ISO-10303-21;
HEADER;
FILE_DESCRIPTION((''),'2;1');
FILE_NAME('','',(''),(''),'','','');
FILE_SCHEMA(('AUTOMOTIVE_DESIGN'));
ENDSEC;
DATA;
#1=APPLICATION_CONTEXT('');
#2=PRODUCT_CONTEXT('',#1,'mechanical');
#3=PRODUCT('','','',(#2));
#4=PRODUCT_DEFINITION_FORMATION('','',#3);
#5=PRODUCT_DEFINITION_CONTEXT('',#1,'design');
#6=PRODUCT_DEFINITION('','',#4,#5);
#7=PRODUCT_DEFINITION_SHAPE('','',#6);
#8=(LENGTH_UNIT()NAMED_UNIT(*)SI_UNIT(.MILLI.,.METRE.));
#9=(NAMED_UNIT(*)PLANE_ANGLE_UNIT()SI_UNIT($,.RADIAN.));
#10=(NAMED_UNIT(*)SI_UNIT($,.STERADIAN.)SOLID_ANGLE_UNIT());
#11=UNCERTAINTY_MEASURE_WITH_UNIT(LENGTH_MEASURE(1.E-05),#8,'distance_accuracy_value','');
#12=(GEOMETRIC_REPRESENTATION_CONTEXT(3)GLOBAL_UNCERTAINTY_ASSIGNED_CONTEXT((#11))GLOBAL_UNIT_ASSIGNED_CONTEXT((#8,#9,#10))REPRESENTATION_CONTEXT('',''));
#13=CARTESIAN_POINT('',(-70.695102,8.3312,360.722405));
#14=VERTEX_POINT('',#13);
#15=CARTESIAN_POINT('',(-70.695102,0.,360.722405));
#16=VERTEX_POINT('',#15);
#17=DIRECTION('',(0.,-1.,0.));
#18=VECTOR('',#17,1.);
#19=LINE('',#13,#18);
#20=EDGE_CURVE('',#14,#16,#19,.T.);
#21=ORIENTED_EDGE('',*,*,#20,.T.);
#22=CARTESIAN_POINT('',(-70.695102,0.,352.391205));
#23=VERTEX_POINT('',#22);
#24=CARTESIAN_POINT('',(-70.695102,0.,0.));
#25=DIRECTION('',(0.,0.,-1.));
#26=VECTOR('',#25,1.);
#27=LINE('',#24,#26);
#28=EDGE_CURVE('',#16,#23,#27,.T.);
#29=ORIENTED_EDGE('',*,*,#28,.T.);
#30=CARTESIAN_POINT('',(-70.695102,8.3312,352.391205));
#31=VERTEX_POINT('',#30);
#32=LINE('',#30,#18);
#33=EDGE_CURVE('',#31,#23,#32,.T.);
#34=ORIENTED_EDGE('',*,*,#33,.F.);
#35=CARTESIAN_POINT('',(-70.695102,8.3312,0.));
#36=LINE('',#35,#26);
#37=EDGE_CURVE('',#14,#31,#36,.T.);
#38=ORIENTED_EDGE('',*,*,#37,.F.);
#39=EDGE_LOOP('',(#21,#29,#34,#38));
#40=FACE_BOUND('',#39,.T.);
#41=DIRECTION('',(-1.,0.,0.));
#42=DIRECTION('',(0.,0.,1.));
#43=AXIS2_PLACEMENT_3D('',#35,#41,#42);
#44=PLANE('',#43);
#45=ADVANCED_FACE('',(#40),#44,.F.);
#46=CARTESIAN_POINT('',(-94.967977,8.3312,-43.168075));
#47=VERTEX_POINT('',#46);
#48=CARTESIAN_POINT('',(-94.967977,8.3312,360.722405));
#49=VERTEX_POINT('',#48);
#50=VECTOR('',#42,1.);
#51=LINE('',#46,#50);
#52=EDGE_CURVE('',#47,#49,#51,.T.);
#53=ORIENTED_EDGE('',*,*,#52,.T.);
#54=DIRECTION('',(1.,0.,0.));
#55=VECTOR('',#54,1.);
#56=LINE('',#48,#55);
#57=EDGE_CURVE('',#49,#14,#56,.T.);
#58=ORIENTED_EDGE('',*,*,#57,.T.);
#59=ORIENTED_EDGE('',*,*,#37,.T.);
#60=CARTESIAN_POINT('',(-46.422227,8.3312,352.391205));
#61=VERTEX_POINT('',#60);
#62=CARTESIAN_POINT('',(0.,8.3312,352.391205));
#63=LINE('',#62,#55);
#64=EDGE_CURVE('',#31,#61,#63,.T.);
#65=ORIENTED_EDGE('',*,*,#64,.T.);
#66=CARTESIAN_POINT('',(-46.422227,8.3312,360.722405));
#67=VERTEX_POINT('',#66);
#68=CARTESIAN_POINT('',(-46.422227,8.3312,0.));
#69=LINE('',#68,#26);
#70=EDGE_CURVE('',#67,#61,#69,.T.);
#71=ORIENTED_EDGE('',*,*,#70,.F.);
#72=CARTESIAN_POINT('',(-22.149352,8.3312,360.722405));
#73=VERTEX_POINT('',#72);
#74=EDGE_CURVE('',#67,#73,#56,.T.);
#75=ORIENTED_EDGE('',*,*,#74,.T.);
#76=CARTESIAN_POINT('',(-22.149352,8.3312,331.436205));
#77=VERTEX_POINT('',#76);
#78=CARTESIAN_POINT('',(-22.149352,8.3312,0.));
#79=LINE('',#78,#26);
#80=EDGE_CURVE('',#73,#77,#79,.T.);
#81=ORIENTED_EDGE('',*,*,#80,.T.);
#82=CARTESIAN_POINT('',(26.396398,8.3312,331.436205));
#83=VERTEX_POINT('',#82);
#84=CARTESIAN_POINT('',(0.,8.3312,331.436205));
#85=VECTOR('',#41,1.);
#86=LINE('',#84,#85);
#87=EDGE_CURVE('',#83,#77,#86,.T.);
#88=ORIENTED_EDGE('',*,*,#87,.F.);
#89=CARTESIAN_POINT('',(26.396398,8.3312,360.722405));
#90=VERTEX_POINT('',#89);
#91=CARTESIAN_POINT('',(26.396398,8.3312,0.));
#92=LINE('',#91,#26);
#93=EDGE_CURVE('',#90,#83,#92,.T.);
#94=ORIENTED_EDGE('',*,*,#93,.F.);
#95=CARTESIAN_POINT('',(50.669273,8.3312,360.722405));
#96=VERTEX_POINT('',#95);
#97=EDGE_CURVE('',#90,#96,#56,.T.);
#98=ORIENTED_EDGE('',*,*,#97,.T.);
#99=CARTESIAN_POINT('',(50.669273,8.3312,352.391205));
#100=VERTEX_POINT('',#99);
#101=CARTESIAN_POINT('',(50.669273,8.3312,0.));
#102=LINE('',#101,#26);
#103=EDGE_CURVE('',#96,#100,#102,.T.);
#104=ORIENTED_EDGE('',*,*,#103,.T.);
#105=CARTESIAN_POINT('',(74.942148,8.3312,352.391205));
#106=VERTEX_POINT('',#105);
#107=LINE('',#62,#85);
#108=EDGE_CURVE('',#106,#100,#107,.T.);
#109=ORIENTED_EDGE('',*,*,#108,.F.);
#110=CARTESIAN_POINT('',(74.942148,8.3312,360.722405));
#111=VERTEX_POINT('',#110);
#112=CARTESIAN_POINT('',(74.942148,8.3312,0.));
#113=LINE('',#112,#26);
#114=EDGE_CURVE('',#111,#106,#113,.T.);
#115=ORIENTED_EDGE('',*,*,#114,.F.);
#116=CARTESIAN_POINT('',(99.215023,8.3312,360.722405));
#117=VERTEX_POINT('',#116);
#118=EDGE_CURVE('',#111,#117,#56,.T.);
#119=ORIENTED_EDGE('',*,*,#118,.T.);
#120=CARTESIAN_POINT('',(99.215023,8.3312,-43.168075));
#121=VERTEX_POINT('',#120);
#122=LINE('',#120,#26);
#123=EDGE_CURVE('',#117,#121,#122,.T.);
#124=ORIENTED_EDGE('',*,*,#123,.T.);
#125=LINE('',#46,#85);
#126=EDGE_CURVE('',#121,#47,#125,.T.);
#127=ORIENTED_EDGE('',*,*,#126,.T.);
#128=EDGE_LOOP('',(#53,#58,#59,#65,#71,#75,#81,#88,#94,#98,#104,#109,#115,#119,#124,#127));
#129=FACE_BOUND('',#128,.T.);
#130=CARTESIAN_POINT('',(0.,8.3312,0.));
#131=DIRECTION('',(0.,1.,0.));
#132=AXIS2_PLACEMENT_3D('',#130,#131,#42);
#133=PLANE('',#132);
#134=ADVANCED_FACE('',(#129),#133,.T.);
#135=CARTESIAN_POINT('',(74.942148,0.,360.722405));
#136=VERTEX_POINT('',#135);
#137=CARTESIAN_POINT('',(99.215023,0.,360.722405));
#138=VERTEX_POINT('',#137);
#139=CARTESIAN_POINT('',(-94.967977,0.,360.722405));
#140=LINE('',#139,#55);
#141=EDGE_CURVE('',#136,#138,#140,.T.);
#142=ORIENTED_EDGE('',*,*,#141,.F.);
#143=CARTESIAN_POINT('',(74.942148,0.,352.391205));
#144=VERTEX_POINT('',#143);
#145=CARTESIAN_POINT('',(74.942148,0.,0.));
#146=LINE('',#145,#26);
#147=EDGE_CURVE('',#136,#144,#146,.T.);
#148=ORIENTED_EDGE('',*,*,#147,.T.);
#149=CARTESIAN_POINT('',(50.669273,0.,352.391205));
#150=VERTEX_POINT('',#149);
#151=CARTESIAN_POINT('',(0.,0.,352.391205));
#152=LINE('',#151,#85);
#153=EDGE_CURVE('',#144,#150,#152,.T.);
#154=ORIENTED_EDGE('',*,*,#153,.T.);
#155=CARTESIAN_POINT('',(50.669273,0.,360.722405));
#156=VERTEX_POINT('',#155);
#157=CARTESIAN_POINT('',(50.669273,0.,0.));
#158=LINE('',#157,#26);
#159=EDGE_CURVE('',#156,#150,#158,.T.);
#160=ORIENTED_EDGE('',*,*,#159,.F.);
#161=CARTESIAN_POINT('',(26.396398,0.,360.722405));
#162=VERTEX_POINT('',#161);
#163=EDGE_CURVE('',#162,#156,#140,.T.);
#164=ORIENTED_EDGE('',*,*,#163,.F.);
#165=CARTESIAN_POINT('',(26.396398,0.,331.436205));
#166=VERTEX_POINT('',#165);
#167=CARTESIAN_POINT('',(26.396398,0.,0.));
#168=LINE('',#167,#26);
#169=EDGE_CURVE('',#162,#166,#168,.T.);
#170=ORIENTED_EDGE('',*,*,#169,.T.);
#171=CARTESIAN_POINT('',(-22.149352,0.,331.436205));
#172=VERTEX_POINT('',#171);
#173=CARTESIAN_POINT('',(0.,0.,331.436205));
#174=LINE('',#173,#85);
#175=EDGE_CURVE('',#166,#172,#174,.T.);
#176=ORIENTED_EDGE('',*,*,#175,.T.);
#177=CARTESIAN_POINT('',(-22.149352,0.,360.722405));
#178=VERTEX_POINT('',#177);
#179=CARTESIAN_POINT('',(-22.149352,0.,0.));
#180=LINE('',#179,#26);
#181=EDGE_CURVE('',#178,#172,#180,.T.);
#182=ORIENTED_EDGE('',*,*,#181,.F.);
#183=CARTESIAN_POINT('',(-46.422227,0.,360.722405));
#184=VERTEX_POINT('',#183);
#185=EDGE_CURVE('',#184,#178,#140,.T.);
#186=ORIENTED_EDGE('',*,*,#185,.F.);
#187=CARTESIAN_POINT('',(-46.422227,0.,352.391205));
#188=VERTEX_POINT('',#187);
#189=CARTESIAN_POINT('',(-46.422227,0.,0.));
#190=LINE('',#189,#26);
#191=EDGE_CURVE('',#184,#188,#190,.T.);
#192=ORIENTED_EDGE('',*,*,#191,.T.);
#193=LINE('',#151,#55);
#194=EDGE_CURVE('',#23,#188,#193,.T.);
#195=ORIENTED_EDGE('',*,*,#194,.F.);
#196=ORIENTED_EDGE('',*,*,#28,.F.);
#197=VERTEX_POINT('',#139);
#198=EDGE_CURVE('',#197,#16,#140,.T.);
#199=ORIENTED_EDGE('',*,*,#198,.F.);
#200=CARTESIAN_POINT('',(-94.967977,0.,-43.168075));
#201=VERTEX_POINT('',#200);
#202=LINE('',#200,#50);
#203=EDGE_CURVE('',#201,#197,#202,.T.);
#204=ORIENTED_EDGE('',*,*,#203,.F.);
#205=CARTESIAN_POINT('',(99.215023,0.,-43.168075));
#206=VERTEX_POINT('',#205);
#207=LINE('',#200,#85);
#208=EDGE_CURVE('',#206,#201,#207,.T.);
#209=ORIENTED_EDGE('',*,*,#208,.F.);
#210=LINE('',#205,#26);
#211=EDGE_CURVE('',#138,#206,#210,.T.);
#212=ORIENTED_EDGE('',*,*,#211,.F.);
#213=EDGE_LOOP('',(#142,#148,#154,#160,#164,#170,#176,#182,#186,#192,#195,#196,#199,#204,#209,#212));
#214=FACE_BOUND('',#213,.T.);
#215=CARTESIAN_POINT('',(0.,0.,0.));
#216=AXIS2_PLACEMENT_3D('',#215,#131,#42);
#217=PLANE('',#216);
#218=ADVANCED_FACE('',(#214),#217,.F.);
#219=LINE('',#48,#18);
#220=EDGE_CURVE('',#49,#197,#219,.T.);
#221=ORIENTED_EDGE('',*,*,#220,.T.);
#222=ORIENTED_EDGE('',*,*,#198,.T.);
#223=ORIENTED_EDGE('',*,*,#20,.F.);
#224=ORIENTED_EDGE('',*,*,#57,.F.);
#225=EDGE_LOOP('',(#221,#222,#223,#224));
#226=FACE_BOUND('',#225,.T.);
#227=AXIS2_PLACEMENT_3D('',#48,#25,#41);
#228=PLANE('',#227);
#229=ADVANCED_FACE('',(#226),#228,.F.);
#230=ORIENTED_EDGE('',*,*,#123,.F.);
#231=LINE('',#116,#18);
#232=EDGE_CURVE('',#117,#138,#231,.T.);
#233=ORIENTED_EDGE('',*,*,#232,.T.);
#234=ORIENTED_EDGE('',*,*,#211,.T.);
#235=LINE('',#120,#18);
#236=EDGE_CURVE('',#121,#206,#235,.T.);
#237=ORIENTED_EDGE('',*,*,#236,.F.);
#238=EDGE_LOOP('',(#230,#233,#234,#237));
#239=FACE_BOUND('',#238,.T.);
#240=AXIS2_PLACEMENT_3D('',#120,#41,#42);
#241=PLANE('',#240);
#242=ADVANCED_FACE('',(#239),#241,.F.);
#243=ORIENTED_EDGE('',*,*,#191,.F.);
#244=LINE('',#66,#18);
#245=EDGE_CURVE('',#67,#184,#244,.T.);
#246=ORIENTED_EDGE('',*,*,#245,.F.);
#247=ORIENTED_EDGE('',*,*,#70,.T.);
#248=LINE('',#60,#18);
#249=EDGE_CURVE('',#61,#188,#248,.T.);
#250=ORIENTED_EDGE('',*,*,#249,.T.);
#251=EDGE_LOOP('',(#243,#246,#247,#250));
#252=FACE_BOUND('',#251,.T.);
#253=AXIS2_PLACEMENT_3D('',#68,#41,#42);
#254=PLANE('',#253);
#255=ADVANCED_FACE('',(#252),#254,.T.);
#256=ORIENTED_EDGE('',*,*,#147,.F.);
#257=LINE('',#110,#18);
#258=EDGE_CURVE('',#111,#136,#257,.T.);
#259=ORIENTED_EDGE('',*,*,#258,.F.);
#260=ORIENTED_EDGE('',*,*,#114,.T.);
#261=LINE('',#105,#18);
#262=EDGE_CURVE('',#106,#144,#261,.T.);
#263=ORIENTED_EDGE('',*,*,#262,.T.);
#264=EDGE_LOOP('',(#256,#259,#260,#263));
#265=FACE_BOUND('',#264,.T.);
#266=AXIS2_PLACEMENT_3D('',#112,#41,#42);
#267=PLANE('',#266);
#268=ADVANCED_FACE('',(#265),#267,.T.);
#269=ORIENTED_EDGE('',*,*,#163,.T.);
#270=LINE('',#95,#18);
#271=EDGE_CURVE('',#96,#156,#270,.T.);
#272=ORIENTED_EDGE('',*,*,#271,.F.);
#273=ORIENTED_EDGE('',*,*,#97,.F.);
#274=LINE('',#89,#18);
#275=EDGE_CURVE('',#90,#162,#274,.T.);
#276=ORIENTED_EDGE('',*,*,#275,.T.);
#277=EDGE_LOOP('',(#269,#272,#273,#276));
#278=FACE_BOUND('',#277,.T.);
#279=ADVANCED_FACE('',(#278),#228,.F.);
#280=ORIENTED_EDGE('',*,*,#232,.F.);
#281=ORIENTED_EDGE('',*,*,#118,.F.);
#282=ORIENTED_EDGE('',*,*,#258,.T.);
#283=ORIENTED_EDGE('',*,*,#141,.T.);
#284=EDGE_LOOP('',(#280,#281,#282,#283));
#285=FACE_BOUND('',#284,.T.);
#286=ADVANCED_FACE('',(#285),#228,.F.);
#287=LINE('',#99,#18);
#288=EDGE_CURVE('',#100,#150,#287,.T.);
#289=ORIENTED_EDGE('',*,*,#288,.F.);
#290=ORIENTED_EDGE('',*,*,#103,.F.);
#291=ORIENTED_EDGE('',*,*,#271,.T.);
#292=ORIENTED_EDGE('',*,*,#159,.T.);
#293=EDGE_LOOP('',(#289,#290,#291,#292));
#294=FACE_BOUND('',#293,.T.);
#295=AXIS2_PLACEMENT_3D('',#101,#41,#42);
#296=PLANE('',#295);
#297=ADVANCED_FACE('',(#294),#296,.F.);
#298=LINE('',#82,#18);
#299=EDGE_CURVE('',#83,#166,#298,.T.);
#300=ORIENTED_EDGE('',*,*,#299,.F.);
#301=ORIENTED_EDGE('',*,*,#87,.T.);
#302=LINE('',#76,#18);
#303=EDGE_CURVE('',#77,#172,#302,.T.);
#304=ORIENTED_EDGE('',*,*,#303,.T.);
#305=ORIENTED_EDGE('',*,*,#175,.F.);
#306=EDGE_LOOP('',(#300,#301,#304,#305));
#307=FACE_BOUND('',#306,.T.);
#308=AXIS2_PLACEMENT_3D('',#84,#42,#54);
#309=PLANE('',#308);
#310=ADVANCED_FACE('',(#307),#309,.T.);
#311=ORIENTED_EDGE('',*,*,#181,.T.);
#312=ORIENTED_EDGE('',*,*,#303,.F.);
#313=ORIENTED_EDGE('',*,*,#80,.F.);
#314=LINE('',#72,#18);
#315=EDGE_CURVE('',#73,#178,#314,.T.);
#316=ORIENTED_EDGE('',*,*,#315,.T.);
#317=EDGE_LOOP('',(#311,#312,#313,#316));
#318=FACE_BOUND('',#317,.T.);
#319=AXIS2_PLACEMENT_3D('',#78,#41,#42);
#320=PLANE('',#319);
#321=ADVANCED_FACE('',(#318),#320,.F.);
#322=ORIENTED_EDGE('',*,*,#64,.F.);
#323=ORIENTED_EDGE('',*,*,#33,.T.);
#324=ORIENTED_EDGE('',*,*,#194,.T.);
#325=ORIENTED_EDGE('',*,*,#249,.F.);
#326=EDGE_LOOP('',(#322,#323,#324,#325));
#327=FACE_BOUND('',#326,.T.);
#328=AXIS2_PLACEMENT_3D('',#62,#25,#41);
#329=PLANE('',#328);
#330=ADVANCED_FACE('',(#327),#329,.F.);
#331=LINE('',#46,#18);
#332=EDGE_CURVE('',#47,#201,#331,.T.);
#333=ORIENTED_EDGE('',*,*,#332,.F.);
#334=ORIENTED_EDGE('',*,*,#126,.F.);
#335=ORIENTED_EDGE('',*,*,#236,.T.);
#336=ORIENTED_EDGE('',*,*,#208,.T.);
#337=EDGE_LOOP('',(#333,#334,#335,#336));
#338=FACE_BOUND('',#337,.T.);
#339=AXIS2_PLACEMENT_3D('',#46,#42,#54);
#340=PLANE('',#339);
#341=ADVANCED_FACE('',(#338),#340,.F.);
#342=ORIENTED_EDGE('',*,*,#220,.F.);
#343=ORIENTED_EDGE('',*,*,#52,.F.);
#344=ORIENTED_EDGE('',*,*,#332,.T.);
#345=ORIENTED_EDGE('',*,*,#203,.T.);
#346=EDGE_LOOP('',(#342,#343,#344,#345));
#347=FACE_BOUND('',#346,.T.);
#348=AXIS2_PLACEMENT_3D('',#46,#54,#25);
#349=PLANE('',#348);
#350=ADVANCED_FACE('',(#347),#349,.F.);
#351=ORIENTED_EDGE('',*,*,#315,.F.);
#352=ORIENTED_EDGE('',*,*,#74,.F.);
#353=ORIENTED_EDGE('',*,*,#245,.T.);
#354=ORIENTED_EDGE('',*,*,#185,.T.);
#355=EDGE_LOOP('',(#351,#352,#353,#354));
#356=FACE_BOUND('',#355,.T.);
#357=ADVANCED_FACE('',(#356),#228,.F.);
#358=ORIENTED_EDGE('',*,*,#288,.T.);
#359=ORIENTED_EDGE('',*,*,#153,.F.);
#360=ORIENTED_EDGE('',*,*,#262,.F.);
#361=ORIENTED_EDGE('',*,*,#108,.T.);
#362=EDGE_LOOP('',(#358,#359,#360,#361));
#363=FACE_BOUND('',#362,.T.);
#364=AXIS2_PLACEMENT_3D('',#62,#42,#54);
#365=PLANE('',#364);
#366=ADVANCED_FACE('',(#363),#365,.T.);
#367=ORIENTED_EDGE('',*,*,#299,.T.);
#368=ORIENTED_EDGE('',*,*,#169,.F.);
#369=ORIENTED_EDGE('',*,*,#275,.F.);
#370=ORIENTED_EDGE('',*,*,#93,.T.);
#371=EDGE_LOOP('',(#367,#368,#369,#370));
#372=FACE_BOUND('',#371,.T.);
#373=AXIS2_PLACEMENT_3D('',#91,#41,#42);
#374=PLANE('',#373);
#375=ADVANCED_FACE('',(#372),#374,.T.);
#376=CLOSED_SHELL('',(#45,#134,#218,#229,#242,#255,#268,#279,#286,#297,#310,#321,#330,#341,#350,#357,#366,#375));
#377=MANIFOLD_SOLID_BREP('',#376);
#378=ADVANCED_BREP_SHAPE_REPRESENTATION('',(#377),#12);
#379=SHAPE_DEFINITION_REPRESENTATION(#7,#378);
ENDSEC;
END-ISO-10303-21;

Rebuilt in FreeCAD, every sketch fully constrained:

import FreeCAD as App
import Part
import Sketcher
from FreeCAD import Vector
Q = App.Units.Quantity


def add_polygon(sketch, points):
    """Adds a closed chain of lines whose ends are joined by coincident constraints."""
    first, n = sketch.GeometryCount, len(points)
    for a, b in zip(points, points[1:] + points[:1]):
        sketch.addGeometry(Part.LineSegment(App.Vector(*a, 0), App.Vector(*b, 0)), False)
    for i in range(n):
        sketch.addConstraint(Sketcher.Constraint("Coincident", first + i, 2, first + (i + 1) % n, 1))

doc = App.newDocument("Part")
body = doc.addObject("PartDesign::Body", "Body")

sketch1 = doc.addObject("Sketcher::SketchObject", "Sketch")
body.addObject(sketch1)
sketch1.AttachmentSupport = (doc.XZ_Plane, [""])
sketch1.MapMode = "FlatFace"
add_polygon(sketch1, [(-95, -43), (-95, 361), (99, 361), (99, -43)])
sketch1.addConstraint([
    Sketcher.Constraint("Vertical", 0),
    Sketcher.Constraint("Horizontal", 1),
    Sketcher.Constraint("Vertical", 2),
    Sketcher.Constraint("Horizontal", 3),
    Sketcher.Constraint("DistanceX", 1, 1, 1, 2, Q("7.645 in")),
    Sketcher.Constraint("DistanceY", 0, 1, 0, 2, Q("15.9012 in")),
    Sketcher.Constraint("DistanceX", 0, 2, -1, 1, 94.967977),
    Sketcher.Constraint("DistanceY", -1, 1, 0, 2, 360.722405),
])
pad1 = doc.addObject("PartDesign::Pad", "Pad")
body.addObject(pad1)
pad1.Profile = sketch1
pad1.Length = Q("0.328 in")
pad1.Reversed = True

sketch2 = doc.addObject("Sketcher::SketchObject", "Sketch001")
body.addObject(sketch2)
sketch2.AttachmentSupport = (doc.XZ_Plane, [""])
sketch2.MapMode = "FlatFace"
add_polygon(sketch2, [(-71, 361), (-71, 352), (-46, 352), (-46, 361)])
add_polygon(sketch2, [(-22, 361), (-22, 331), (26, 331), (26, 361)])
add_polygon(sketch2, [(51, 361), (51, 352), (75, 352), (75, 361)])
sketch2.addConstraint([
    Sketcher.Constraint("Vertical", 0),
    Sketcher.Constraint("Horizontal", 1),
    Sketcher.Constraint("Vertical", 2),
    Sketcher.Constraint("Horizontal", 3),
    Sketcher.Constraint("Vertical", 4),
    Sketcher.Constraint("Horizontal", 5),
    Sketcher.Constraint("Vertical", 6),
    Sketcher.Constraint("Horizontal", 7),
    Sketcher.Constraint("Vertical", 8),
    Sketcher.Constraint("Horizontal", 9),
    Sketcher.Constraint("Vertical", 10),
    Sketcher.Constraint("Horizontal", 11),
    Sketcher.Constraint("Horizontal", 3, 2, 6, 2),
    Sketcher.Constraint("Horizontal", 1, 2, 8, 2),
    Sketcher.Constraint("Horizontal", 7, 2, 10, 2),
    Sketcher.Constraint("Equal", 3, 9),
    Sketcher.Constraint("DistanceY", 0, 2, 0, 1, Q("0.328 in")),
    Sketcher.Constraint("DistanceY", 4, 2, 4, 1, Q("1.153 in")),
    Sketcher.Constraint("DistanceX", 0, 2, 5, 2, Q("3.8225 in")),
    Sketcher.Constraint("DistanceX", 1, 2, 8, 2, Q("3.8225 in")),
    Sketcher.Constraint("DistanceX", 7, 2, 9, 2, Q("3.8225 in")),
    Sketcher.Constraint("DistanceX", 5, 1, 5, 2, 48.54575),
    Sketcher.Constraint("DistanceX", 0, 2, -1, 1, 70.695102),
    Sketcher.Constraint("DistanceY", -1, 1, 0, 2, 352.391205),
])
pocket1 = doc.addObject("PartDesign::Pocket", "Pocket")
body.addObject(pocket1)
pocket1.Profile = sketch2
pocket1.Type = "ThroughAll"

doc.recompute()
